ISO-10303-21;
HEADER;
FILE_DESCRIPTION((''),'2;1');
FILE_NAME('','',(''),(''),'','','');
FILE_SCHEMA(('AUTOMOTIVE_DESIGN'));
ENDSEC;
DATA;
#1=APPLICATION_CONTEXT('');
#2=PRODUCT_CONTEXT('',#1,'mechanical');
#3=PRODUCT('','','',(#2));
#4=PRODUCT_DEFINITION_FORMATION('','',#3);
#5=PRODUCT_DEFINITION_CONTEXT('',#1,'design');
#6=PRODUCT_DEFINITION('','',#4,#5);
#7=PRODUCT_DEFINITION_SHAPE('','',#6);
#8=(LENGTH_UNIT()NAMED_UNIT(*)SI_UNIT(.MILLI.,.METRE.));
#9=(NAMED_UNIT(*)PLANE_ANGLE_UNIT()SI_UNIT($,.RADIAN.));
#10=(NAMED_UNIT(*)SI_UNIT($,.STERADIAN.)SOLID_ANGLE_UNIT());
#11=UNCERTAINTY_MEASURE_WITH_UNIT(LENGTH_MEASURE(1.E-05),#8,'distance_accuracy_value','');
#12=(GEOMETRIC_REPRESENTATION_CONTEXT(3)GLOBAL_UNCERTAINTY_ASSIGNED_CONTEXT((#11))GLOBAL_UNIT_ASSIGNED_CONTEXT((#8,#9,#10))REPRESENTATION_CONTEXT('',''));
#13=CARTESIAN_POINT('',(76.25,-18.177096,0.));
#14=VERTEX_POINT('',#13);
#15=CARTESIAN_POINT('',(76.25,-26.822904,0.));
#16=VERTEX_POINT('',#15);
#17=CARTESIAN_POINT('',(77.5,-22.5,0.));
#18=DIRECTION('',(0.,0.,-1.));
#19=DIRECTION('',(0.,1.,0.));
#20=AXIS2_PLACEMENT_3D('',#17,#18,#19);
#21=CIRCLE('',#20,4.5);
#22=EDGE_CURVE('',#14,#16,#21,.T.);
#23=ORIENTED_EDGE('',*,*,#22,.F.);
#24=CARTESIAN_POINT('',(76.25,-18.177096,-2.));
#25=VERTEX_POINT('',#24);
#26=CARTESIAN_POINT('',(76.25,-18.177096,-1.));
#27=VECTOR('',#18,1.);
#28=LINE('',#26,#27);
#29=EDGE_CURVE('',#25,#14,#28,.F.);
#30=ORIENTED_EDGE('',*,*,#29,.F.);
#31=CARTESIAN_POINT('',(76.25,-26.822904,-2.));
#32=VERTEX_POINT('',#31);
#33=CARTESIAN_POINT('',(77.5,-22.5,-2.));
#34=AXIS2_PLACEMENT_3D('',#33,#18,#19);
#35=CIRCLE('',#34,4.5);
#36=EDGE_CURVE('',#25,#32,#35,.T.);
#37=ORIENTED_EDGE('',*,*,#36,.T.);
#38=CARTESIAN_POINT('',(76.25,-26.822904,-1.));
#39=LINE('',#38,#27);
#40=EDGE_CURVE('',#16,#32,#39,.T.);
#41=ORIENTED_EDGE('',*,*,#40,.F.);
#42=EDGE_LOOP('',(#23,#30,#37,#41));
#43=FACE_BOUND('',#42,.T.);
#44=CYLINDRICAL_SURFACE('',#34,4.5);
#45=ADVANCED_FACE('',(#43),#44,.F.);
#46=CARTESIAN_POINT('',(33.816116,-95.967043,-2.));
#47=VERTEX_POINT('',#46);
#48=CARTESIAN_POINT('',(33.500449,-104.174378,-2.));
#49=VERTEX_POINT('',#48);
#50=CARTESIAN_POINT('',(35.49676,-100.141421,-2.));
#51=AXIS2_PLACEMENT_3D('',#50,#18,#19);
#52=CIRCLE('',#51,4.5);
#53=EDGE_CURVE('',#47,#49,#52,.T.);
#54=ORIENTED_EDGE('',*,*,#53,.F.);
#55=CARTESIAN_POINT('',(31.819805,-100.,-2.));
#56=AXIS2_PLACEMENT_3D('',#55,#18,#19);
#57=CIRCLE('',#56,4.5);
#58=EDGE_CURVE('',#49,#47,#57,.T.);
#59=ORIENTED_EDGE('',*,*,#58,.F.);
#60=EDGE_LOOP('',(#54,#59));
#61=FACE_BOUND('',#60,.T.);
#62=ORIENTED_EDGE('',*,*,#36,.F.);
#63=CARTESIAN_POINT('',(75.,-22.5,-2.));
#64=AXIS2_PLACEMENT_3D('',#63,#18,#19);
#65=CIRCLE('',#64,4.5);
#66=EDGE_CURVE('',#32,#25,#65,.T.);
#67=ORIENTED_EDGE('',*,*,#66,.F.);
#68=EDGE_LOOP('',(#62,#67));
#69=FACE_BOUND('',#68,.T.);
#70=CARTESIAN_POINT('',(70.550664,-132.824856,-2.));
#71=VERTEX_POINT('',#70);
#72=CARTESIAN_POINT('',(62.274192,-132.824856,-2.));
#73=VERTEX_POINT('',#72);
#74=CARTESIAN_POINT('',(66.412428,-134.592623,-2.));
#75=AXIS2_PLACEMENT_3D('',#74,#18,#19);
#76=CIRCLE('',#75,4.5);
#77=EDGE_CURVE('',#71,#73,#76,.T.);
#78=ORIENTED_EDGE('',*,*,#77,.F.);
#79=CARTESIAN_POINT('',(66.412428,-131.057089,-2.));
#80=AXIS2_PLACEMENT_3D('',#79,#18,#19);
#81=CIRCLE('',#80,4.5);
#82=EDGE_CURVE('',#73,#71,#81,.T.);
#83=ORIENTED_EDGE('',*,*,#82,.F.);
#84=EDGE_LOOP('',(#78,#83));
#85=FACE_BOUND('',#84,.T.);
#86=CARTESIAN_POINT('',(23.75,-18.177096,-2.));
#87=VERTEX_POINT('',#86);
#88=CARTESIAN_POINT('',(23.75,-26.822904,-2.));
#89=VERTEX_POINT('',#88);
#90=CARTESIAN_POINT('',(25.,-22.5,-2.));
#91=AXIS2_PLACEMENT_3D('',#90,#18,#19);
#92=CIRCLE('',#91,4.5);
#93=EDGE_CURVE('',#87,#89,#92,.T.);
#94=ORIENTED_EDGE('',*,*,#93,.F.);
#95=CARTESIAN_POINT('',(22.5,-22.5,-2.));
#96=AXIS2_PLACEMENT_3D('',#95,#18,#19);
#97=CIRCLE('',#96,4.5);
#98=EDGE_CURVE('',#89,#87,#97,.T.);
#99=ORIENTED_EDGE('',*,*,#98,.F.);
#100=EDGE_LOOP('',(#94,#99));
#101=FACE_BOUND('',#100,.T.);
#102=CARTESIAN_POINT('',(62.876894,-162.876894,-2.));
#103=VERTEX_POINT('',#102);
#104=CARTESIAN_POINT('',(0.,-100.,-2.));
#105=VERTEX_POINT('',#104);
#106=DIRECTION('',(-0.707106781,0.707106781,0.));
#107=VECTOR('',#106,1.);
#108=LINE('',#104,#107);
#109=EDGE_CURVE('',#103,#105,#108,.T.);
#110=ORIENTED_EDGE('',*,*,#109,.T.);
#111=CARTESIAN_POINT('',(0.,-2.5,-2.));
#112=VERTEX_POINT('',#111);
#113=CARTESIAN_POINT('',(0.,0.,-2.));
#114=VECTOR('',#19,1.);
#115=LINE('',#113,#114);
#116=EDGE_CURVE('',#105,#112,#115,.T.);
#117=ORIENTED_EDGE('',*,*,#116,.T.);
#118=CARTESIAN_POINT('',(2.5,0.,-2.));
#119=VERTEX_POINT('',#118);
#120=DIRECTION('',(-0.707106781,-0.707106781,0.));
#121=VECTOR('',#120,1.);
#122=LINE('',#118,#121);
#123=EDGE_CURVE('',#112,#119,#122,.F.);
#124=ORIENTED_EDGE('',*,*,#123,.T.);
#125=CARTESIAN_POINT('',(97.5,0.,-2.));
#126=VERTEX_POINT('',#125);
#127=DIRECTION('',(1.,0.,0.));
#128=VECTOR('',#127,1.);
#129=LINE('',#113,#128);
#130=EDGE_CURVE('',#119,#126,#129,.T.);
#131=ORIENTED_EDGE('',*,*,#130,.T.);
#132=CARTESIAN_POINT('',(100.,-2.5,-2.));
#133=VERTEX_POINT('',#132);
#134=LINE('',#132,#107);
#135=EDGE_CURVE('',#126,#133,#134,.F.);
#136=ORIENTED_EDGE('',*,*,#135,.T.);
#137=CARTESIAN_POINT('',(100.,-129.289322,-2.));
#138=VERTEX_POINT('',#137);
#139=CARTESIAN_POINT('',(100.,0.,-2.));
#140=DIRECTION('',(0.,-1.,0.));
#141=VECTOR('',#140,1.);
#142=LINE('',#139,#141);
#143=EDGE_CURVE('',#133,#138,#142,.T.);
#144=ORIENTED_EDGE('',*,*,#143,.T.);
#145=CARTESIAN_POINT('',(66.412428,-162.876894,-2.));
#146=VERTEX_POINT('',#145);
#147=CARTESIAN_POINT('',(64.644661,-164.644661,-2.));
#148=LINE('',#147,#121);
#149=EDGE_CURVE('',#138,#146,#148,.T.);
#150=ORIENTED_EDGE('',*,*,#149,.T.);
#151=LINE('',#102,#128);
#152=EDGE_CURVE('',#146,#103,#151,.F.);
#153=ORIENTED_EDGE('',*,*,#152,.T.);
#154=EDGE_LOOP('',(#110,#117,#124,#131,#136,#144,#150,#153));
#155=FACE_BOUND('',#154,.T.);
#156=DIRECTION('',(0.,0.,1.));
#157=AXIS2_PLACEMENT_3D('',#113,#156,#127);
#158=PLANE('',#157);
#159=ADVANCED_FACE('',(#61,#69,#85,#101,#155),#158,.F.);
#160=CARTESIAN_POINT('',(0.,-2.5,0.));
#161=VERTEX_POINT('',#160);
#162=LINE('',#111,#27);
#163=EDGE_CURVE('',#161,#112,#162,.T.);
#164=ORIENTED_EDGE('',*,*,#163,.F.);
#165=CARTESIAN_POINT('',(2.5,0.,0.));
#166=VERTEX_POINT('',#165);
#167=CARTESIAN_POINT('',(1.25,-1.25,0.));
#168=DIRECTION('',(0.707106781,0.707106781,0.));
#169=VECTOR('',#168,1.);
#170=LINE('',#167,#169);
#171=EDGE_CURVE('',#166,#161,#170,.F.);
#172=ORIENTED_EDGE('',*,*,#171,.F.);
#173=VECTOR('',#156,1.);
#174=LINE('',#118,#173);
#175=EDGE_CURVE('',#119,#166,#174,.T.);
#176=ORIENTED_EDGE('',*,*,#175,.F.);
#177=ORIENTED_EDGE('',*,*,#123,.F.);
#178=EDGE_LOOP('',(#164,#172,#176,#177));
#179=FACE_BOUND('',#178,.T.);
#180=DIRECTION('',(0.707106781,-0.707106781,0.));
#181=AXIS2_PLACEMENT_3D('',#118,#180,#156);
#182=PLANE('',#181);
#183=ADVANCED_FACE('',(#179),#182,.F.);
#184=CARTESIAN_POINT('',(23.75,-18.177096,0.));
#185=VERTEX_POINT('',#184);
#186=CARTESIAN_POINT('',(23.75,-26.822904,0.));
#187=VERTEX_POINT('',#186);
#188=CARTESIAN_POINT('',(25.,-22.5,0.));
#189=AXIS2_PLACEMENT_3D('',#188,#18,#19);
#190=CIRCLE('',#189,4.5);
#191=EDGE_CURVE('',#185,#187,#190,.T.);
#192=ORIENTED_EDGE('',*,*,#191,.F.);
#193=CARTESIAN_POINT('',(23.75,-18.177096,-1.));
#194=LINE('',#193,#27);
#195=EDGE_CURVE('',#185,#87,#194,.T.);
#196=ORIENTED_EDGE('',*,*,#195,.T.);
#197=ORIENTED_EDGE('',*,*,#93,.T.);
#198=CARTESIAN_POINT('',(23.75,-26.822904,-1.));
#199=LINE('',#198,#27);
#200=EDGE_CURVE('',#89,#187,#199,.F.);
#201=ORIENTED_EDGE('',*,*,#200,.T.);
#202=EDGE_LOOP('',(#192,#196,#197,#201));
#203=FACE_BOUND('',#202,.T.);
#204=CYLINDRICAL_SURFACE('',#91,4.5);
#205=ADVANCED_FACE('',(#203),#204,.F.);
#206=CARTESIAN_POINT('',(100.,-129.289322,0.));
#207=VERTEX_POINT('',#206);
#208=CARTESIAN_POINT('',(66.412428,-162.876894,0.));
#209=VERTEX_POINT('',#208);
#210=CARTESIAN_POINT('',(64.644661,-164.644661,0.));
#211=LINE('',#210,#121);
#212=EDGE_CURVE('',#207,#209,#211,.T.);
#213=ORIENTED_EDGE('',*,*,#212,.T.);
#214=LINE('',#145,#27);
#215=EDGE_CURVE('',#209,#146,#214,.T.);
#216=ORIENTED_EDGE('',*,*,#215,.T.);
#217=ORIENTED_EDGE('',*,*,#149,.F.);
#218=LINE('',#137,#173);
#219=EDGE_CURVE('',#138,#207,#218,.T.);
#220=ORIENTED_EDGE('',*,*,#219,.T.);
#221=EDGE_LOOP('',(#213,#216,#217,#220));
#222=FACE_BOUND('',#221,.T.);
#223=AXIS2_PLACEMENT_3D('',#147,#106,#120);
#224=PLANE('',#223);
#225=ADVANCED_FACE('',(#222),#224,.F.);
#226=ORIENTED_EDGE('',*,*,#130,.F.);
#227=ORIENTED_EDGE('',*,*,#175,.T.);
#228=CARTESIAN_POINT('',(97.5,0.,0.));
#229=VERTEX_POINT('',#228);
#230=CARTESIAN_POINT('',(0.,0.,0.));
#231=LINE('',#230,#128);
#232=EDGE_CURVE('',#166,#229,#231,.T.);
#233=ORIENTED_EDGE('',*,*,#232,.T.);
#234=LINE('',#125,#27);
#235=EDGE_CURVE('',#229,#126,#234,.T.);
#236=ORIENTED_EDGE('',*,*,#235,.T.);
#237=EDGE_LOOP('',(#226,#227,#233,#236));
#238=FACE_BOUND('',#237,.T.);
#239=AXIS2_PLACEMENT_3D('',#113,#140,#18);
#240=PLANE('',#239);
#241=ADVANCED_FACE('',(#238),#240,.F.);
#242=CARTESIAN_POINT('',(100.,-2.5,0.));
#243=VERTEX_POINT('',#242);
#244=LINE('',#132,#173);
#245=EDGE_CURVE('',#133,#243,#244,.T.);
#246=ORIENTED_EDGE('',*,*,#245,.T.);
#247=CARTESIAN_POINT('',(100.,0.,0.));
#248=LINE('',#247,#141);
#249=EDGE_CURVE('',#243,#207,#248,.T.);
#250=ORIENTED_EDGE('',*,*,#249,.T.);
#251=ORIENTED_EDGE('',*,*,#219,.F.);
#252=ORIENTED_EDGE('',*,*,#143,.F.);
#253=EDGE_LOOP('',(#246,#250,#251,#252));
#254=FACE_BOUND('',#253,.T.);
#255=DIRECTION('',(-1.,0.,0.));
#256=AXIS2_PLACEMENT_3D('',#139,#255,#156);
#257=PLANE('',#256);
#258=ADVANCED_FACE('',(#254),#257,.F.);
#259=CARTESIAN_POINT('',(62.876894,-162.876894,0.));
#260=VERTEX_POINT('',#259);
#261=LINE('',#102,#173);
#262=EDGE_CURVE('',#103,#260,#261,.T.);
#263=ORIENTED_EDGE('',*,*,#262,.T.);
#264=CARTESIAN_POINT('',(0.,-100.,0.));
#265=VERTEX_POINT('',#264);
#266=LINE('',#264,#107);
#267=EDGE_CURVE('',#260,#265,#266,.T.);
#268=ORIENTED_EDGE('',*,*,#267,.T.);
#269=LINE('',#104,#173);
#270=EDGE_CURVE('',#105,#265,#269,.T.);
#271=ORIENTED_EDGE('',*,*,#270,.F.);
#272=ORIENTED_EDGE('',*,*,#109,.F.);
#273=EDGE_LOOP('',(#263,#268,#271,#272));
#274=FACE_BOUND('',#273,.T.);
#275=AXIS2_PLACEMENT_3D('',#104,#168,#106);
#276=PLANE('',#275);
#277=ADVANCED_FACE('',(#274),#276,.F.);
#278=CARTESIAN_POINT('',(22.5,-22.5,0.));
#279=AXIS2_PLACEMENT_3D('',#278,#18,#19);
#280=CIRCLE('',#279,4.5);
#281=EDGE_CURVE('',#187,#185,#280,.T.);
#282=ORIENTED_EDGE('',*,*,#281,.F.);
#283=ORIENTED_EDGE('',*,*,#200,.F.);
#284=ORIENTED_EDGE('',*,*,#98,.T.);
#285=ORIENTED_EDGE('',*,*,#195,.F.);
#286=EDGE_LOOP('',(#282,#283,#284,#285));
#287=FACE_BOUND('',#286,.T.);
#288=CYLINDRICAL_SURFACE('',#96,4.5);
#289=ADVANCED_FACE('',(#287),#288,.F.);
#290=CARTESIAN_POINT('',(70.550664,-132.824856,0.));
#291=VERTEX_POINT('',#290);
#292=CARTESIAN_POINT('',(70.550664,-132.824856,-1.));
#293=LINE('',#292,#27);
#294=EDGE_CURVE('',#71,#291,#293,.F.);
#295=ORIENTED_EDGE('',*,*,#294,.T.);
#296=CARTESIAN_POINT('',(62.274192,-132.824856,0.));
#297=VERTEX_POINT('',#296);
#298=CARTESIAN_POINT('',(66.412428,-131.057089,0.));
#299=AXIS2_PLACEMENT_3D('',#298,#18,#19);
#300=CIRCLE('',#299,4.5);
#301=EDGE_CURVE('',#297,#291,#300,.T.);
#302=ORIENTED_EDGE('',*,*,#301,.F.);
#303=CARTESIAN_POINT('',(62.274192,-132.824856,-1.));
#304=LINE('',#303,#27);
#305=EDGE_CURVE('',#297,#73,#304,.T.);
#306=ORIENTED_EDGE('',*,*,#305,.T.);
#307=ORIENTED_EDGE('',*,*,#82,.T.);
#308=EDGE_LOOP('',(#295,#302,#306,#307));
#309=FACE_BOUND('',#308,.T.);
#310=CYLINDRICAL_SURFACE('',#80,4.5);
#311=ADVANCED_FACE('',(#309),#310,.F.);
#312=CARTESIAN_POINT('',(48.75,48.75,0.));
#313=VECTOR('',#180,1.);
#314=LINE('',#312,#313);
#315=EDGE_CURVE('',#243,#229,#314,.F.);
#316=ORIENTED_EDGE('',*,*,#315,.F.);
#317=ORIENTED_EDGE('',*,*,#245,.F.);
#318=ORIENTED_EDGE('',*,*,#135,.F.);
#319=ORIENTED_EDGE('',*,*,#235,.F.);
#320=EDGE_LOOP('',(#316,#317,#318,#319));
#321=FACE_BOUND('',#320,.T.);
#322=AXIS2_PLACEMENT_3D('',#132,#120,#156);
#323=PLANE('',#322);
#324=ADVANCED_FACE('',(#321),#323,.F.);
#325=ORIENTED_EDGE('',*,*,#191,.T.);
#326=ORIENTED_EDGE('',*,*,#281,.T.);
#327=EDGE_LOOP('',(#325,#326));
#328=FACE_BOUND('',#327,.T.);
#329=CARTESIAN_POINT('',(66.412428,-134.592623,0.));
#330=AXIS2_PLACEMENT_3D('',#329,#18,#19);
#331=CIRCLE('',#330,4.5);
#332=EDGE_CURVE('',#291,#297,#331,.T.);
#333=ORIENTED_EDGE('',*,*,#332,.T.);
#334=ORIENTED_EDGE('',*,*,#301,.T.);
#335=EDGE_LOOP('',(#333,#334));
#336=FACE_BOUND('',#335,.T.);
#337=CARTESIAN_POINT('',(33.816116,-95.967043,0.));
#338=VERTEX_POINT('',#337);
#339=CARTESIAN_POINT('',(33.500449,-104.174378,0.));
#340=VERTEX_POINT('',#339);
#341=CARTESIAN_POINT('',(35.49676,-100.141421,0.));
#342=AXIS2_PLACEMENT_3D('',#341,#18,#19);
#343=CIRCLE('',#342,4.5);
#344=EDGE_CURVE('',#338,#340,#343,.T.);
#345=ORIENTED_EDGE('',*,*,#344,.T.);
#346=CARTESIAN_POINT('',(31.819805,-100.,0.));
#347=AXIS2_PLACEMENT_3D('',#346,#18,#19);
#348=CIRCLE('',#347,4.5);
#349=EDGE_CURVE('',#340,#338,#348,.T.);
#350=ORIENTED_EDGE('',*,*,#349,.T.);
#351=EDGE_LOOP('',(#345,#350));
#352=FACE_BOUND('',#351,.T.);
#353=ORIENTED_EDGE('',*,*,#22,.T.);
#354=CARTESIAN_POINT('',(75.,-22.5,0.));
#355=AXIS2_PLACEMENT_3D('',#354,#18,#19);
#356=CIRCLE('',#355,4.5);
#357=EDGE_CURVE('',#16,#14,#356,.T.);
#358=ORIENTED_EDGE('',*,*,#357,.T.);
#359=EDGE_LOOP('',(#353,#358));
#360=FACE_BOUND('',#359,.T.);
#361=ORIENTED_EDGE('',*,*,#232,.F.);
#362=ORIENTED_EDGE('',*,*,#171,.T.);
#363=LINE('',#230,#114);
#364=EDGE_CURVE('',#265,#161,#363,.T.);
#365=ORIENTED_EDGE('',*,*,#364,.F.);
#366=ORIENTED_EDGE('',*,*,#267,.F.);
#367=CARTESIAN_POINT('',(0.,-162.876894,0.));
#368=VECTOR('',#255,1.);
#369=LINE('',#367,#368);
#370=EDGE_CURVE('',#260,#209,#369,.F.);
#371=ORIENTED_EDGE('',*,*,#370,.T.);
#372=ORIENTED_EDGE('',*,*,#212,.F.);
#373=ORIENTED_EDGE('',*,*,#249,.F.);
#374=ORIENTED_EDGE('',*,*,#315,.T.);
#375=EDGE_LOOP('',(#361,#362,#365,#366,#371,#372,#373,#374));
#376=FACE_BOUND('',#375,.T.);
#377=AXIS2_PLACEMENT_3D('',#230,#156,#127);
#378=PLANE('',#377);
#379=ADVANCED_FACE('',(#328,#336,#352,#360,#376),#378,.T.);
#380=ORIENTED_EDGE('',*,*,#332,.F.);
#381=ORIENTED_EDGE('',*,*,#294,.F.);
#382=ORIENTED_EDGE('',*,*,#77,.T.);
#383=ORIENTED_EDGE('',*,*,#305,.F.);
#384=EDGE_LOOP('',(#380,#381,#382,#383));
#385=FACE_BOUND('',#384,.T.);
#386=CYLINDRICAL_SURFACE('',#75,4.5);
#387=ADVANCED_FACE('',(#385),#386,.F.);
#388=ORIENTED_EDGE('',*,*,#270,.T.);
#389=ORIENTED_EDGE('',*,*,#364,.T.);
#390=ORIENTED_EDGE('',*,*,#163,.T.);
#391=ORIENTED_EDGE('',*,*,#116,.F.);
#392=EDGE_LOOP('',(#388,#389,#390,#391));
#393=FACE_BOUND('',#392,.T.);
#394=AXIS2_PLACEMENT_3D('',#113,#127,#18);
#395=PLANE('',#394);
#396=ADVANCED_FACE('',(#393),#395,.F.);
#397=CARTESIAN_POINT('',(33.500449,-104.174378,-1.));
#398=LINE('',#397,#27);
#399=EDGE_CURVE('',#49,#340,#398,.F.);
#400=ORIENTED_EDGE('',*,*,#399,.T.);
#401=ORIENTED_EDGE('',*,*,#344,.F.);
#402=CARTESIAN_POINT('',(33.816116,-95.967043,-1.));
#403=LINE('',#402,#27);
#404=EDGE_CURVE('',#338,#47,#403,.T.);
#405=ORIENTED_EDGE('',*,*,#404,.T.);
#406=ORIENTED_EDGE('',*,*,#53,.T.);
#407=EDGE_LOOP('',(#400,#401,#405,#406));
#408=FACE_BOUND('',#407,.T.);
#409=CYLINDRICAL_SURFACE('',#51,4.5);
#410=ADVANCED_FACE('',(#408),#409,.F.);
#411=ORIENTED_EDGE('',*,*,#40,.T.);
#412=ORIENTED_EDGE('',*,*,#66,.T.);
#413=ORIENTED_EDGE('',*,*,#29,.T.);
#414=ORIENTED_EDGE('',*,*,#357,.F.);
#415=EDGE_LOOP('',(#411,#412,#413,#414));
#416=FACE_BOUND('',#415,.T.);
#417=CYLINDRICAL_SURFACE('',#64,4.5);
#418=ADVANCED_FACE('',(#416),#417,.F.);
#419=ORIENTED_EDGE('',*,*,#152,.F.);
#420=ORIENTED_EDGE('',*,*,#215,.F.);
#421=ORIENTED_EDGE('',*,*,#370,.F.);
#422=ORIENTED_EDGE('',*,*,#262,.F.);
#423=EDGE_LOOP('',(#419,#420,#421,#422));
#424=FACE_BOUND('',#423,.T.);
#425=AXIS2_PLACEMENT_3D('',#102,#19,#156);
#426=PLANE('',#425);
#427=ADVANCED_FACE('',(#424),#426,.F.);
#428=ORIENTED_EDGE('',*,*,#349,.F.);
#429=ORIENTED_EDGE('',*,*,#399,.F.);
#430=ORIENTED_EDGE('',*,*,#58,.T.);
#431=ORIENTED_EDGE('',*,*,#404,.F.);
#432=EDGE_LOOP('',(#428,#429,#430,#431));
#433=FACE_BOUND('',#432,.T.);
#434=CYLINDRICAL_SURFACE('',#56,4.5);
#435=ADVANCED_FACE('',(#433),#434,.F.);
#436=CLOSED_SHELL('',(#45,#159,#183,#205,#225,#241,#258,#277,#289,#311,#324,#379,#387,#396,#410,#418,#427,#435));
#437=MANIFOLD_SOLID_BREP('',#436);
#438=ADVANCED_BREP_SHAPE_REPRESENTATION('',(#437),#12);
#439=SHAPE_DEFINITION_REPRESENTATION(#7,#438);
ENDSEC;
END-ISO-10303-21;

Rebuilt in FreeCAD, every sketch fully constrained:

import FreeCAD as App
import Part
import Sketcher
Q = App.Units.Quantity


def edges_at(feature, points):
    """Names of the edges that pass closest to the given points."""
    edges = feature.Shape.Edges
    near = lambda p: min(range(len(edges)), key=lambda i: edges[i].distToShape(Part.Vertex(*p))[0])
    return sorted({f"Edge{near(p) + 1}" for p in points})


def add_polygon(sketch, points):
    """Adds a closed chain of lines whose ends are joined by coincident constraints."""
    first, n = sketch.GeometryCount, len(points)
    for a, b in zip(points, points[1:] + points[:1]):
        sketch.addGeometry(Part.LineSegment(App.Vector(*a, 0), App.Vector(*b, 0)), False)
    for i in range(n):
        sketch.addConstraint(Sketcher.Constraint("Coincident", first + i, 2, first + (i + 1) % n, 1))

doc = App.newDocument("Part")
body = doc.addObject("PartDesign::Body", "Body")

# Sketch on XY plane
sketch1 = body.newObject("Sketcher::SketchObject", "Sketch")
sketch1.AttachmentSupport = (doc.getObject("XY_Plane"), [""])
sketch1.MapMode = "FlatFace"
add_polygon(sketch1, [(0, 0), (100, 0), (100, -129.289322), (64.644661, -164.644661), (0, -100)])  # lines 0-4
sketch1.addConstraint([
    Sketcher.Constraint("Horizontal", 0),
    Sketcher.Constraint("Vertical", 1),
    Sketcher.Constraint("Vertical", 4),
    Sketcher.Constraint("Coincident", 4, 2, -1, 1),
    Sketcher.Constraint("Perpendicular", 2, 3),
    Sketcher.Constraint("Equal", 0, 4),
    Sketcher.Constraint("DistanceX", 0, 1, 0, 2, Q("100 mm")),
    Sketcher.Constraint("Angle", 2, Q("-135 deg")),
    Sketcher.Constraint("Distance", 2, Q("50 mm")),
])
pad1 = body.newObject("PartDesign::Pad", "Pad")
pad1.Profile = sketch1
pad1.Length = 2
pad1.Reversed = True

# Sketch on XY plane
sketch2 = body.newObject("Sketcher::SketchObject", "Sketch001")
sketch2.AttachmentSupport = (doc.getObject("XY_Plane"), [""])
sketch2.MapMode = "FlatFace"
sketch2.AttachmentOffset = App.Placement(App.Vector(0, 0, -2), App.Rotation())
sketch2.addGeometry([
    Part.Circle(App.Vector(22.5, -22.5, 0), App.Vector(0, 0, 1), 4.5),  # 0
    Part.Circle(App.Vector(77.5, -22.5, 0), App.Vector(0, 0, 1), 4.5),  # 1
    Part.Circle(App.Vector(31.819805, -100, 0), App.Vector(0, 0, 1), 4.5),  # 2
    Part.Circle(App.Vector(66.412428, -134.592623, 0), App.Vector(0, 0, 1), 4.5),  # 3
    Part.Circle(App.Vector(35.49676, -100.141421, 0), App.Vector(0, 0, 1), 4.5),  # 4
    Part.Circle(App.Vector(66.412428, -131.057089, 0), App.Vector(0, 0, 1), 4.5),  # 5
    Part.Circle(App.Vector(25, -22.5, 0), App.Vector(0, 0, 1), 4.5),  # 6
    Part.Circle(App.Vector(75, -22.5, 0), App.Vector(0, 0, 1), 4.5),  # 7
], False)
sketch2.addConstraint([
    Sketcher.Constraint("Equal", 0, 1),
    Sketcher.Constraint("Equal", 1, 2),
    Sketcher.Constraint("Equal", 2, 3),
    Sketcher.Constraint("Equal", 3, 4),
    Sketcher.Constraint("Equal", 4, 5),
    Sketcher.Constraint("Equal", 5, 6),
    Sketcher.Constraint("Equal", 6, 7),
    Sketcher.Constraint("Horizontal", 0, 3, 1, 3),
    Sketcher.Constraint("Horizontal", 1, 3, 6, 3),
    Sketcher.Constraint("Horizontal", 6, 3, 7, 3),
    Sketcher.Constraint("Vertical", 3, 3, 5, 3),
    Sketcher.Constraint("Diameter", 0, Q("9 mm")),
    Sketcher.Constraint("DistanceY", 2, 3, -1, 1, Q("100 mm")),
    Sketcher.Constraint("DistanceX", -1, 1, 6, 3, Q("25 mm")),
    Sketcher.Constraint("DistanceX", -1, 1, 7, 3, Q("75 mm")),
    Sketcher.Constraint("DistanceX", 0, 3, 1, 3, Q("55 mm")),
    Sketcher.Constraint("DistanceX", -1, 1, 0, 3, Q("22.5 mm")),
    Sketcher.Constraint("DistanceY", 0, 3, -1, 1, Q("22.5 mm")),
    Sketcher.Constraint("DistanceY", 3, 3, 4, 3, Q("34.451201 mm")),
    Sketcher.Constraint("DistanceX", -1, 1, 4, 3, Q("35.49676 mm")),
    Sketcher.Constraint("DistanceY", 4, 3, -1, 1, Q("100.141421 mm")),
    Sketcher.Constraint("DistanceY", 5, 3, -1, 1, Q("131.057089 mm")),
    Sketcher.Constraint("DistanceX", -1, 1, 2, 3, Q("31.819805 mm")),
    Sketcher.Constraint("DistanceX", -1, 1, 3, 3, Q("66.412428 mm")),
])
doc.recompute()
hole = body.newObject("PartDesign::Hole", "Hole")
hole.Profile = sketch2
hole.ThreadType = "None"
hole.Diameter = 9
hole.DepthType = "ThroughAll"
hole.Reversed = True
doc.recompute()

chamfer = body.newObject("PartDesign::Chamfer", "Chamfer")
chamfer.Base = (hole, edges_at(hole, [(64.645, -164.645, -1), (100, 0, -1), (0, 0, -1)]))
chamfer.Size = 2.5

doc.recompute()
